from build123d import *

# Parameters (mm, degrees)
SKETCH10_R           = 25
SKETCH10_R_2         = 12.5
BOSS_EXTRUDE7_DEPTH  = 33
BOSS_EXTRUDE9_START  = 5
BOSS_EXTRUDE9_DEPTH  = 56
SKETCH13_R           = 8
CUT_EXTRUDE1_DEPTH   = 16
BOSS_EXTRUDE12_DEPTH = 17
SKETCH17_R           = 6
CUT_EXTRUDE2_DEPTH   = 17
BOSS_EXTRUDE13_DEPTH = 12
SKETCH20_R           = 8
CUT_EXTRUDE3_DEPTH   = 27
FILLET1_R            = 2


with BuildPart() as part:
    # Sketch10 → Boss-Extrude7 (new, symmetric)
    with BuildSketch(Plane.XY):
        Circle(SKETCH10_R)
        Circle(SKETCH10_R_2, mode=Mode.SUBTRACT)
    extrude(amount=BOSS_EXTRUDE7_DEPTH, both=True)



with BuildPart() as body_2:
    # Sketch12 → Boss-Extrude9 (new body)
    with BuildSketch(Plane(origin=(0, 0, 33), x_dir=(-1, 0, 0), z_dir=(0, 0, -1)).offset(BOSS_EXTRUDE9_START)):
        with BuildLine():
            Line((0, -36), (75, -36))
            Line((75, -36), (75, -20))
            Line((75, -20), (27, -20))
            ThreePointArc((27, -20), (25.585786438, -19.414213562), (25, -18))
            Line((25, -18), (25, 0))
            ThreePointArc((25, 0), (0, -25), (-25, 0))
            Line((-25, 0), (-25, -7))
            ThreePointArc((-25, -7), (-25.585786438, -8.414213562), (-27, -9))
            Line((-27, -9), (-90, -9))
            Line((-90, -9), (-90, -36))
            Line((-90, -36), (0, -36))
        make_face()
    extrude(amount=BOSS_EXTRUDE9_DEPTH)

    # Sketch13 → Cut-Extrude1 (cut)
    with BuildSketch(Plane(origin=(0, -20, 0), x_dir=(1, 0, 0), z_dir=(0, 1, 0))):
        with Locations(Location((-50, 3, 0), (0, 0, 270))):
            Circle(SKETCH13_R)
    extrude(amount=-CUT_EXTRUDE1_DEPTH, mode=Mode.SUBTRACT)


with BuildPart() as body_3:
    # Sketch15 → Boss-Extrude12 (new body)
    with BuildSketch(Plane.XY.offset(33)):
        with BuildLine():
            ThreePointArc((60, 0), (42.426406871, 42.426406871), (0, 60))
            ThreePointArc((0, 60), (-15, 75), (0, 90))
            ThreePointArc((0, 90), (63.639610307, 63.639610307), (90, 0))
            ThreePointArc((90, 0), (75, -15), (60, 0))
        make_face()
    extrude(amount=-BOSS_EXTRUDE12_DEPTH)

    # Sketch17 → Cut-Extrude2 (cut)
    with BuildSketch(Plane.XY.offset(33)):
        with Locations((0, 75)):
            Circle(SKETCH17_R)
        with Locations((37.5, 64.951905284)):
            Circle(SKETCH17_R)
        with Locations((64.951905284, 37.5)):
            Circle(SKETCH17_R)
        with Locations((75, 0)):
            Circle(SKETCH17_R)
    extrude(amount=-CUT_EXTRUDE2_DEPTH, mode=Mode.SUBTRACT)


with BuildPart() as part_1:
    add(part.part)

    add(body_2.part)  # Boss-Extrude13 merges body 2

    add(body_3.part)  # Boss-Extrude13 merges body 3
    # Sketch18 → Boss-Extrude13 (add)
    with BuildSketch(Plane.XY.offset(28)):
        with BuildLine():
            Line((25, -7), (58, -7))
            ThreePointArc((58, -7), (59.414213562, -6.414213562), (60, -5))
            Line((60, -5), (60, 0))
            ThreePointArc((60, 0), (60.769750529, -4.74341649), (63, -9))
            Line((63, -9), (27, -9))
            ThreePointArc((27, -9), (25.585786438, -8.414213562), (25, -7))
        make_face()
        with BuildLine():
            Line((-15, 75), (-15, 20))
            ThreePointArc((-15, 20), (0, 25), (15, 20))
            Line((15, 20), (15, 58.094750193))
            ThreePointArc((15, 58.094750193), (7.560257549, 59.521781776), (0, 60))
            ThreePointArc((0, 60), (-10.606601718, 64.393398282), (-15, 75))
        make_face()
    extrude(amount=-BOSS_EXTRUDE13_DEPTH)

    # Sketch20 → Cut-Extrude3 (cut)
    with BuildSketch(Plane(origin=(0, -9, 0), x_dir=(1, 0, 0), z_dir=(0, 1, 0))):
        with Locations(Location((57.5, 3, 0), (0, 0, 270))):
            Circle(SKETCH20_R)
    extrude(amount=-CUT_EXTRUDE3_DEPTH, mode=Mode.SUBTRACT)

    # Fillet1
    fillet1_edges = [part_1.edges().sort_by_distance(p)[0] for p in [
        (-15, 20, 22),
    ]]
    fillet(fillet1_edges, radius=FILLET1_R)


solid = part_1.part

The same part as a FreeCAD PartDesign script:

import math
import FreeCAD as App
import Part
import Sketcher
from FreeCAD import Vector
Q = App.Units.Quantity


def edges_at(feature, points):
    """Names of the edges that pass closest to the given points."""
    edges = feature.Shape.Edges
    near = lambda p: min(range(len(edges)), key=lambda i: edges[i].distToShape(Part.Vertex(*p))[0])
    return sorted({f"Edge{near(p) + 1}" for p in points})

doc = App.newDocument("Part")
body = doc.addObject("PartDesign::Body", "Body")

# Sketch on XY plane
sketch1 = doc.addObject("Sketcher::SketchObject", "Sketch")
body.addObject(sketch1)
sketch1.AttachmentSupport = (doc.XY_Plane, [""])
sketch1.MapMode = "FlatFace"
sketch1.addGeometry(Part.Circle(Vector(0, 0, 0), Vector(0, 0, 1), 25), False)
sketch1.addGeometry(Part.Circle(Vector(0, 0, 0), Vector(0, 0, 1), 12.5), False)
sketch1.addConstraint(Sketcher.Constraint("Coincident", 0, 3, -1, 1))
sketch1.addConstraint(Sketcher.Constraint("Coincident", 1, 3, -1, 1))
sketch1.addConstraint(Sketcher.Constraint("Diameter", 0, Q("50 mm")))
sketch1.addConstraint(Sketcher.Constraint("Diameter", 1, Q("25 mm")))
pad1 = doc.addObject("PartDesign::Pad", "Pad")
body.addObject(pad1)
pad1.Profile = sketch1
pad1.Length = 66
pad1.Midplane = True
body2 = doc.addObject("PartDesign::Body", "Body001")

# Sketch on XY plane
sketch2 = doc.addObject("Sketcher::SketchObject", "Sketch001")
body2.addObject(sketch2)
sketch2.AttachmentSupport = (doc.getObject("XY_Plane001"), [""])
sketch2.MapMode = "FlatFace"
sketch2.AttachmentOffset = App.Placement(Vector(0, 0, 28), App.Rotation())
sketch2.addGeometry(Part.LineSegment(Vector(-75, -36, 0), Vector(-75, -20, 0)), False)
sketch2.addGeometry(Part.LineSegment(Vector(-75, -20, 0), Vector(-27, -20, 0)), False)
sketch2.addGeometry(Part.ArcOfCircle(Part.Circle(Vector(-27, -18, 0), Vector(0, 0, 1), 2), math.radians(-90), math.radians(0)), False)
sketch2.addGeometry(Part.LineSegment(Vector(-25, -18, 0), Vector(-25, 0, 0)), False)
sketch2.addGeometry(Part.ArcOfCircle(Part.Circle(Vector(0, 0, 0), Vector(0, 0, 1), 25), math.radians(180), math.radians(360)), False)
sketch2.addGeometry(Part.LineSegment(Vector(25, 0, 0), Vector(25, -7, 0)), False)
sketch2.addGeometry(Part.ArcOfCircle(Part.Circle(Vector(27, -7, 0), Vector(0, 0, 1), 2), math.radians(-180), math.radians(-90)), False)
sketch2.addGeometry(Part.LineSegment(Vector(27, -9, 0), Vector(90, -9, 0)), False)
sketch2.addGeometry(Part.LineSegment(Vector(90, -9, 0), Vector(90, -36, 0)), False)
sketch2.addGeometry(Part.LineSegment(Vector(90, -36, 0), Vector(-75, -36, 0)), False)
sketch2.addConstraint(Sketcher.Constraint("Coincident", 0, 2, 1, 1))
sketch2.addConstraint(Sketcher.Constraint("Tangent", 1, 2, 2, 1))
sketch2.addConstraint(Sketcher.Constraint("Tangent", 2, 2, 3, 1))
sketch2.addConstraint(Sketcher.Constraint("Tangent", 3, 2, 4, 1))
sketch2.addConstraint(Sketcher.Constraint("Tangent", 4, 2, 5, 1))
sketch2.addConstraint(Sketcher.Constraint("Tangent", 5, 2, 6, 1))
sketch2.addConstraint(Sketcher.Constraint("Tangent", 6, 2, 7, 1))
sketch2.addConstraint(Sketcher.Constraint("Coincident", 7, 2, 8, 1))
sketch2.addConstraint(Sketcher.Constraint("Coincident", 8, 2, 9, 1))
sketch2.addConstraint(Sketcher.Constraint("Coincident", 9, 2, 0, 1))
sketch2.addConstraint(Sketcher.Constraint("Vertical", 0))
sketch2.addConstraint(Sketcher.Constraint("Horizontal", 1))
sketch2.addConstraint(Sketcher.Constraint("Vertical", 3))
sketch2.addConstraint(Sketcher.Constraint("Vertical", 5))
sketch2.addConstraint(Sketcher.Constraint("Horizontal", 7))
sketch2.addConstraint(Sketcher.Constraint("Vertical", 8))
sketch2.addConstraint(Sketcher.Constraint("Horizontal", 9))
sketch2.addConstraint(Sketcher.Constraint("Coincident", 4, 3, -1, 1))
sketch2.addConstraint(Sketcher.Constraint("Equal", 2, 6))
sketch2.addConstraint(Sketcher.Constraint("Radius", 2, Q("2 mm")))
sketch2.addConstraint(Sketcher.Constraint("Radius", 4, Q("25 mm")))
sketch2.addConstraint(Sketcher.Constraint("DistanceX", 1, 1, 1, 2, Q("48 mm")))
sketch2.addConstraint(Sketcher.Constraint("DistanceX", 7, 1, 7, 2, Q("63 mm")))
sketch2.addConstraint(Sketcher.Constraint("DistanceY", 0, 1, 0, 2, Q("16 mm")))
sketch2.addConstraint(Sketcher.Constraint("DistanceY", 3, 1, 3, 2, Q("18 mm")))
sketch2.addConstraint(Sketcher.Constraint("DistanceY", 5, 2, 5, 1, Q("7 mm")))
pad2 = doc.addObject("PartDesign::Pad", "Pad001")
body2.addObject(pad2)
pad2.Profile = sketch2
pad2.Length = 56
pad2.Reversed = True

# Sketch on XZ plane
sketch3 = doc.addObject("Sketcher::SketchObject", "Sketch002")
body2.addObject(sketch3)
sketch3.AttachmentSupport = (doc.getObject("XZ_Plane001"), [""])
sketch3.MapMode = "FlatFace"
sketch3.AttachmentOffset = App.Placement(Vector(0, 0, 20), App.Rotation())
sketch3.addGeometry(Part.Circle(Vector(-50, -3, 0), Vector(0, 0, 1), 8), False)
sketch3.addConstraint(Sketcher.Constraint("Diameter", 0, Q("16 mm")))
sketch3.addConstraint(Sketcher.Constraint("DistanceX", 0, 3, -1, 1, Q("50 mm")))
sketch3.addConstraint(Sketcher.Constraint("DistanceY", 0, 3, -1, 1, Q("3 mm")))
pocket1 = doc.addObject("PartDesign::Pocket", "Pocket")
body2.addObject(pocket1)
pocket1.Profile = sketch3
pocket1.Length = 16
pocket1.Reversed = True
body3 = doc.addObject("PartDesign::Body", "Body002")

# Sketch on XY plane
sketch4 = doc.addObject("Sketcher::SketchObject", "Sketch003")
body3.addObject(sketch4)
sketch4.AttachmentSupport = (doc.getObject("XY_Plane002"), [""])
sketch4.MapMode = "FlatFace"
sketch4.AttachmentOffset = App.Placement(Vector(0, 0, 33), App.Rotation())
sketch4.addGeometry(Part.ArcOfCircle(Part.Circle(Vector(0, 0, 0), Vector(0, 0, 1), 60), math.radians(0), math.radians(90)), False)
sketch4.addGeometry(Part.ArcOfCircle(Part.Circle(Vector(75, 0, 0), Vector(0, 0, 1), 15), math.radians(180), math.radians(360)), False)
sketch4.addGeometry(Part.ArcOfCircle(Part.Circle(Vector(0, 0, 0), Vector(0, 0, 1), 90), math.radians(0), math.radians(90)), False)
sketch4.addGeometry(Part.ArcOfCircle(Part.Circle(Vector(0, 75, 0), Vector(0, 0, 1), 15), math.radians(90), math.radians(270)), False)
sketch4.addConstraint(Sketcher.Constraint("Tangent", 0, 1, 1, 1))
sketch4.addConstraint(Sketcher.Constraint("Tangent", 1, 2, 2, 1))
sketch4.addConstraint(Sketcher.Constraint("Tangent", 2, 2, 3, 1))
sketch4.addConstraint(Sketcher.Constraint("Tangent", 3, 2, 0, 2))
sketch4.addConstraint(Sketcher.Constraint("Coincident", 0, 3, -1, 1))
sketch4.addConstraint(Sketcher.Constraint("Coincident", 2, 3, -1, 1))
sketch4.addConstraint(Sketcher.Constraint("PointOnObject", 1, 3, -1))
sketch4.addConstraint(Sketcher.Constraint("PointOnObject", 3, 3, -2))
sketch4.addConstraint(Sketcher.Constraint("Radius", 0, Q("60 mm")))
sketch4.addConstraint(Sketcher.Constraint("Radius", 1, Q("15 mm")))
pad3 = doc.addObject("PartDesign::Pad", "Pad002")
body3.addObject(pad3)
pad3.Profile = sketch4
pad3.Length = 17
pad3.Reversed = True

# Sketch on XY plane
sketch5 = doc.addObject("Sketcher::SketchObject", "Sketch004")
body3.addObject(sketch5)
sketch5.AttachmentSupport = (doc.getObject("XY_Plane002"), [""])
sketch5.MapMode = "FlatFace"
sketch5.AttachmentOffset = App.Placement(Vector(0, 0, 33), App.Rotation())
sketch5.addGeometry(Part.Circle(Vector(0, 75, 0), Vector(0, 0, 1), 6), False)
sketch5.addGeometry(Part.Circle(Vector(37.5, 64.951905, 0), Vector(0, 0, 1), 6), False)
sketch5.addGeometry(Part.Circle(Vector(64.951905, 37.5, 0), Vector(0, 0, 1), 6), False)
sketch5.addGeometry(Part.Circle(Vector(75, 0, 0), Vector(0, 0, 1), 6), False)
sketch5.addConstraint(Sketcher.Constraint("Equal", 0, 1))
sketch5.addConstraint(Sketcher.Constraint("Equal", 1, 2))
sketch5.addConstraint(Sketcher.Constraint("Equal", 2, 3))
sketch5.addConstraint(Sketcher.Constraint("PointOnObject", 0, 3, -2))
sketch5.addConstraint(Sketcher.Constraint("PointOnObject", 3, 3, -1))
sketch5.addConstraint(Sketcher.Constraint("Diameter", 0, Q("12 mm")))
sketch5.addConstraint(Sketcher.Constraint("DistanceY", -1, 1, 0, 3, Q("75 mm")))
sketch5.addConstraint(Sketcher.Constraint("DistanceX", -1, 1, 3, 3, Q("75 mm")))
sketch5.addConstraint(Sketcher.Constraint("DistanceX", -1, 1, 1, 3, Q("37.5 mm")))
sketch5.addConstraint(Sketcher.Constraint("DistanceY", -1, 1, 2, 3, Q("37.5 mm")))
sketch5.addConstraint(Sketcher.Constraint("DistanceY", -1, 1, 1, 3, Q("64.951905 mm")))
sketch5.addConstraint(Sketcher.Constraint("DistanceX", -1, 1, 2, 3, Q("64.951905 mm")))
pocket2 = doc.addObject("PartDesign::Pocket", "Pocket001")
body3.addObject(pocket2)
pocket2.Profile = sketch5
pocket2.Length = 17
doc.recompute()

boolean = doc.addObject("PartDesign::Boolean", "Boolean")
body.addObject(boolean)
boolean.Type = "Fuse"
boolean.addObjects([body2])
doc.recompute()

boolean2 = doc.addObject("PartDesign::Boolean", "Boolean001")
body.addObject(boolean2)
boolean2.Type = "Fuse"
boolean2.addObjects([body3])

# Sketch on XY plane
sketch6 = doc.addObject("Sketcher::SketchObject", "Sketch005")
body.addObject(sketch6)
sketch6.AttachmentSupport = (doc.XY_Plane, [""])
sketch6.MapMode = "FlatFace"
sketch6.AttachmentOffset = App.Placement(Vector(0, 0, 28), App.Rotation())
sketch6.addGeometry(Part.LineSegment(Vector(58, -7, 0), Vector(25, -7, 0)), False)
sketch6.addGeometry(Part.ArcOfCircle(Part.Circle(Vector(27, -7, 0), Vector(0, 0, 1), 2), math.radians(-180), math.radians(-90)), False)
sketch6.addGeometry(Part.LineSegment(Vector(27, -9, 0), Vector(63, -9, 0)), False)
sketch6.addGeometry(Part.ArcOfCircle(Part.Circle(Vector(75, 0, 0), Vector(0, 0, 1), 15), math.radians(180), math.radians(216.869898)), False)
sketch6.addGeometry(Part.LineSegment(Vector(60, 0, 0), Vector(60, -5, 0)), False)
sketch6.addGeometry(Part.ArcOfCircle(Part.Circle(Vector(58, -5, 0), Vector(0, 0, 1), 2), math.radians(-90), math.radians(0)), False)
sketch6.addGeometry(Part.LineSegment(Vector(-15, 75, 0), Vector(-15, 20, 0)), False)
sketch6.addGeometry(Part.ArcOfCircle(Part.Circle(Vector(0, 0, 0), Vector(0, 0, 1), 25), math.radians(53.130102), math.radians(126.869898)), False)
sketch6.addGeometry(Part.LineSegment(Vector(15, 20, 0), Vector(15, 58.09475, 0)), False)
sketch6.addGeometry(Part.ArcOfCircle(Part.Circle(Vector(0, 0, 0), Vector(0, 0, 1), 60), math.radians(75.522488), math.radians(90)), False)
sketch6.addGeometry(Part.ArcOfCircle(Part.Circle(Vector(0, 75, 0), Vector(0, 0, 1), 15), math.radians(180), math.radians(270)), False)
sketch6.addConstraint(Sketcher.Constraint("Coincident", 0, 2, 1, 1))
sketch6.addConstraint(Sketcher.Constraint("Tangent", 1, 2, 2, 1))
sketch6.addConstraint(Sketcher.Constraint("Coincident", 2, 2, 3, 2))
sketch6.addConstraint(Sketcher.Constraint("Tangent", 3, 1, 4, 1))
sketch6.addConstraint(Sketcher.Constraint("Tangent", 4, 2, 5, 2))
sketch6.addConstraint(Sketcher.Constraint("Tangent", 5, 1, 0, 1))
sketch6.addConstraint(Sketcher.Constraint("Coincident", 6, 2, 7, 2))
sketch6.addConstraint(Sketcher.Constraint("Coincident", 7, 1, 8, 1))
sketch6.addConstraint(Sketcher.Constraint("Coincident", 8, 2, 9, 1))
sketch6.addConstraint(Sketcher.Constraint("Tangent", 9, 2, 10, 2))
sketch6.addConstraint(Sketcher.Constraint("Tangent", 10, 1, 6, 1))
sketch6.addConstraint(Sketcher.Constraint("Horizontal", 0))
sketch6.addConstraint(Sketcher.Constraint("Horizontal", 2))
sketch6.addConstraint(Sketcher.Constraint("Vertical", 4))
sketch6.addConstraint(Sketcher.Constraint("Vertical", 6))
sketch6.addConstraint(Sketcher.Constraint("Vertical", 8))
sketch6.addConstraint(Sketcher.Constraint("Coincident", 7, 3, -1, 1))
sketch6.addConstraint(Sketcher.Constraint("Coincident", 9, 3, -1, 1))
sketch6.addConstraint(Sketcher.Constraint("Equal", 1, 5))
sketch6.addConstraint(Sketcher.Constraint("Equal", 3, 10))
sketch6.addConstraint(Sketcher.Constraint("PointOnObject", 3, 3, -1))
sketch6.addConstraint(Sketcher.Constraint("PointOnObject", 10, 3, -2))
sketch6.addConstraint(Sketcher.Constraint("Horizontal", 1, 3, 0, 2))
sketch6.addConstraint(Sketcher.Constraint("Horizontal", 6, 2, 7, 1))
sketch6.addConstraint(Sketcher.Constraint("Radius", 1, Q("2 mm")))
sketch6.addConstraint(Sketcher.Constraint("Radius", 3, Q("15 mm")))
sketch6.addConstraint(Sketcher.Constraint("Radius", 7, Q("25 mm")))
sketch6.addConstraint(Sketcher.Constraint("Radius", 9, Q("60 mm")))
sketch6.addConstraint(Sketcher.Constraint("DistanceX", 0, 2, 0, 1, Q("33 mm")))
sketch6.addConstraint(Sketcher.Constraint("DistanceX", 2, 1, 2, 2, Q("36 mm")))
sketch6.addConstraint(Sketcher.Constraint("DistanceX", -1, 1, 1, 3, Q("27 mm")))
pad4 = doc.addObject("PartDesign::Pad", "Pad003")
body.addObject(pad4)
pad4.Profile = sketch6
pad4.Length = 12
pad4.Reversed = True

# Sketch on XZ plane
sketch7 = doc.addObject("Sketcher::SketchObject", "Sketch006")
body.addObject(sketch7)
sketch7.AttachmentSupport = (doc.XZ_Plane, [""])
sketch7.MapMode = "FlatFace"
sketch7.AttachmentOffset = App.Placement(Vector(0, 0, 9), App.Rotation())
sketch7.addGeometry(Part.Circle(Vector(57.5, -3, 0), Vector(0, 0, 1), 8), False)
sketch7.addConstraint(Sketcher.Constraint("Diameter", 0, Q("16 mm")))
sketch7.addConstraint(Sketcher.Constraint("DistanceY", 0, 3, -1, 1, Q("3 mm")))
sketch7.addConstraint(Sketcher.Constraint("DistanceX", -1, 1, 0, 3, Q("57.5 mm")))
pocket3 = doc.addObject("PartDesign::Pocket", "Pocket002")
body.addObject(pocket3)
pocket3.Profile = sketch7
pocket3.Length = 27
pocket3.Reversed = True
doc.recompute()

fillet = doc.addObject("PartDesign::Fillet", "Fillet")
body.addObject(fillet)
fillet.Base = (pocket3, edges_at(pocket3, [(-15, 20, 22)]))
fillet.Radius = 2

doc.recompute()
